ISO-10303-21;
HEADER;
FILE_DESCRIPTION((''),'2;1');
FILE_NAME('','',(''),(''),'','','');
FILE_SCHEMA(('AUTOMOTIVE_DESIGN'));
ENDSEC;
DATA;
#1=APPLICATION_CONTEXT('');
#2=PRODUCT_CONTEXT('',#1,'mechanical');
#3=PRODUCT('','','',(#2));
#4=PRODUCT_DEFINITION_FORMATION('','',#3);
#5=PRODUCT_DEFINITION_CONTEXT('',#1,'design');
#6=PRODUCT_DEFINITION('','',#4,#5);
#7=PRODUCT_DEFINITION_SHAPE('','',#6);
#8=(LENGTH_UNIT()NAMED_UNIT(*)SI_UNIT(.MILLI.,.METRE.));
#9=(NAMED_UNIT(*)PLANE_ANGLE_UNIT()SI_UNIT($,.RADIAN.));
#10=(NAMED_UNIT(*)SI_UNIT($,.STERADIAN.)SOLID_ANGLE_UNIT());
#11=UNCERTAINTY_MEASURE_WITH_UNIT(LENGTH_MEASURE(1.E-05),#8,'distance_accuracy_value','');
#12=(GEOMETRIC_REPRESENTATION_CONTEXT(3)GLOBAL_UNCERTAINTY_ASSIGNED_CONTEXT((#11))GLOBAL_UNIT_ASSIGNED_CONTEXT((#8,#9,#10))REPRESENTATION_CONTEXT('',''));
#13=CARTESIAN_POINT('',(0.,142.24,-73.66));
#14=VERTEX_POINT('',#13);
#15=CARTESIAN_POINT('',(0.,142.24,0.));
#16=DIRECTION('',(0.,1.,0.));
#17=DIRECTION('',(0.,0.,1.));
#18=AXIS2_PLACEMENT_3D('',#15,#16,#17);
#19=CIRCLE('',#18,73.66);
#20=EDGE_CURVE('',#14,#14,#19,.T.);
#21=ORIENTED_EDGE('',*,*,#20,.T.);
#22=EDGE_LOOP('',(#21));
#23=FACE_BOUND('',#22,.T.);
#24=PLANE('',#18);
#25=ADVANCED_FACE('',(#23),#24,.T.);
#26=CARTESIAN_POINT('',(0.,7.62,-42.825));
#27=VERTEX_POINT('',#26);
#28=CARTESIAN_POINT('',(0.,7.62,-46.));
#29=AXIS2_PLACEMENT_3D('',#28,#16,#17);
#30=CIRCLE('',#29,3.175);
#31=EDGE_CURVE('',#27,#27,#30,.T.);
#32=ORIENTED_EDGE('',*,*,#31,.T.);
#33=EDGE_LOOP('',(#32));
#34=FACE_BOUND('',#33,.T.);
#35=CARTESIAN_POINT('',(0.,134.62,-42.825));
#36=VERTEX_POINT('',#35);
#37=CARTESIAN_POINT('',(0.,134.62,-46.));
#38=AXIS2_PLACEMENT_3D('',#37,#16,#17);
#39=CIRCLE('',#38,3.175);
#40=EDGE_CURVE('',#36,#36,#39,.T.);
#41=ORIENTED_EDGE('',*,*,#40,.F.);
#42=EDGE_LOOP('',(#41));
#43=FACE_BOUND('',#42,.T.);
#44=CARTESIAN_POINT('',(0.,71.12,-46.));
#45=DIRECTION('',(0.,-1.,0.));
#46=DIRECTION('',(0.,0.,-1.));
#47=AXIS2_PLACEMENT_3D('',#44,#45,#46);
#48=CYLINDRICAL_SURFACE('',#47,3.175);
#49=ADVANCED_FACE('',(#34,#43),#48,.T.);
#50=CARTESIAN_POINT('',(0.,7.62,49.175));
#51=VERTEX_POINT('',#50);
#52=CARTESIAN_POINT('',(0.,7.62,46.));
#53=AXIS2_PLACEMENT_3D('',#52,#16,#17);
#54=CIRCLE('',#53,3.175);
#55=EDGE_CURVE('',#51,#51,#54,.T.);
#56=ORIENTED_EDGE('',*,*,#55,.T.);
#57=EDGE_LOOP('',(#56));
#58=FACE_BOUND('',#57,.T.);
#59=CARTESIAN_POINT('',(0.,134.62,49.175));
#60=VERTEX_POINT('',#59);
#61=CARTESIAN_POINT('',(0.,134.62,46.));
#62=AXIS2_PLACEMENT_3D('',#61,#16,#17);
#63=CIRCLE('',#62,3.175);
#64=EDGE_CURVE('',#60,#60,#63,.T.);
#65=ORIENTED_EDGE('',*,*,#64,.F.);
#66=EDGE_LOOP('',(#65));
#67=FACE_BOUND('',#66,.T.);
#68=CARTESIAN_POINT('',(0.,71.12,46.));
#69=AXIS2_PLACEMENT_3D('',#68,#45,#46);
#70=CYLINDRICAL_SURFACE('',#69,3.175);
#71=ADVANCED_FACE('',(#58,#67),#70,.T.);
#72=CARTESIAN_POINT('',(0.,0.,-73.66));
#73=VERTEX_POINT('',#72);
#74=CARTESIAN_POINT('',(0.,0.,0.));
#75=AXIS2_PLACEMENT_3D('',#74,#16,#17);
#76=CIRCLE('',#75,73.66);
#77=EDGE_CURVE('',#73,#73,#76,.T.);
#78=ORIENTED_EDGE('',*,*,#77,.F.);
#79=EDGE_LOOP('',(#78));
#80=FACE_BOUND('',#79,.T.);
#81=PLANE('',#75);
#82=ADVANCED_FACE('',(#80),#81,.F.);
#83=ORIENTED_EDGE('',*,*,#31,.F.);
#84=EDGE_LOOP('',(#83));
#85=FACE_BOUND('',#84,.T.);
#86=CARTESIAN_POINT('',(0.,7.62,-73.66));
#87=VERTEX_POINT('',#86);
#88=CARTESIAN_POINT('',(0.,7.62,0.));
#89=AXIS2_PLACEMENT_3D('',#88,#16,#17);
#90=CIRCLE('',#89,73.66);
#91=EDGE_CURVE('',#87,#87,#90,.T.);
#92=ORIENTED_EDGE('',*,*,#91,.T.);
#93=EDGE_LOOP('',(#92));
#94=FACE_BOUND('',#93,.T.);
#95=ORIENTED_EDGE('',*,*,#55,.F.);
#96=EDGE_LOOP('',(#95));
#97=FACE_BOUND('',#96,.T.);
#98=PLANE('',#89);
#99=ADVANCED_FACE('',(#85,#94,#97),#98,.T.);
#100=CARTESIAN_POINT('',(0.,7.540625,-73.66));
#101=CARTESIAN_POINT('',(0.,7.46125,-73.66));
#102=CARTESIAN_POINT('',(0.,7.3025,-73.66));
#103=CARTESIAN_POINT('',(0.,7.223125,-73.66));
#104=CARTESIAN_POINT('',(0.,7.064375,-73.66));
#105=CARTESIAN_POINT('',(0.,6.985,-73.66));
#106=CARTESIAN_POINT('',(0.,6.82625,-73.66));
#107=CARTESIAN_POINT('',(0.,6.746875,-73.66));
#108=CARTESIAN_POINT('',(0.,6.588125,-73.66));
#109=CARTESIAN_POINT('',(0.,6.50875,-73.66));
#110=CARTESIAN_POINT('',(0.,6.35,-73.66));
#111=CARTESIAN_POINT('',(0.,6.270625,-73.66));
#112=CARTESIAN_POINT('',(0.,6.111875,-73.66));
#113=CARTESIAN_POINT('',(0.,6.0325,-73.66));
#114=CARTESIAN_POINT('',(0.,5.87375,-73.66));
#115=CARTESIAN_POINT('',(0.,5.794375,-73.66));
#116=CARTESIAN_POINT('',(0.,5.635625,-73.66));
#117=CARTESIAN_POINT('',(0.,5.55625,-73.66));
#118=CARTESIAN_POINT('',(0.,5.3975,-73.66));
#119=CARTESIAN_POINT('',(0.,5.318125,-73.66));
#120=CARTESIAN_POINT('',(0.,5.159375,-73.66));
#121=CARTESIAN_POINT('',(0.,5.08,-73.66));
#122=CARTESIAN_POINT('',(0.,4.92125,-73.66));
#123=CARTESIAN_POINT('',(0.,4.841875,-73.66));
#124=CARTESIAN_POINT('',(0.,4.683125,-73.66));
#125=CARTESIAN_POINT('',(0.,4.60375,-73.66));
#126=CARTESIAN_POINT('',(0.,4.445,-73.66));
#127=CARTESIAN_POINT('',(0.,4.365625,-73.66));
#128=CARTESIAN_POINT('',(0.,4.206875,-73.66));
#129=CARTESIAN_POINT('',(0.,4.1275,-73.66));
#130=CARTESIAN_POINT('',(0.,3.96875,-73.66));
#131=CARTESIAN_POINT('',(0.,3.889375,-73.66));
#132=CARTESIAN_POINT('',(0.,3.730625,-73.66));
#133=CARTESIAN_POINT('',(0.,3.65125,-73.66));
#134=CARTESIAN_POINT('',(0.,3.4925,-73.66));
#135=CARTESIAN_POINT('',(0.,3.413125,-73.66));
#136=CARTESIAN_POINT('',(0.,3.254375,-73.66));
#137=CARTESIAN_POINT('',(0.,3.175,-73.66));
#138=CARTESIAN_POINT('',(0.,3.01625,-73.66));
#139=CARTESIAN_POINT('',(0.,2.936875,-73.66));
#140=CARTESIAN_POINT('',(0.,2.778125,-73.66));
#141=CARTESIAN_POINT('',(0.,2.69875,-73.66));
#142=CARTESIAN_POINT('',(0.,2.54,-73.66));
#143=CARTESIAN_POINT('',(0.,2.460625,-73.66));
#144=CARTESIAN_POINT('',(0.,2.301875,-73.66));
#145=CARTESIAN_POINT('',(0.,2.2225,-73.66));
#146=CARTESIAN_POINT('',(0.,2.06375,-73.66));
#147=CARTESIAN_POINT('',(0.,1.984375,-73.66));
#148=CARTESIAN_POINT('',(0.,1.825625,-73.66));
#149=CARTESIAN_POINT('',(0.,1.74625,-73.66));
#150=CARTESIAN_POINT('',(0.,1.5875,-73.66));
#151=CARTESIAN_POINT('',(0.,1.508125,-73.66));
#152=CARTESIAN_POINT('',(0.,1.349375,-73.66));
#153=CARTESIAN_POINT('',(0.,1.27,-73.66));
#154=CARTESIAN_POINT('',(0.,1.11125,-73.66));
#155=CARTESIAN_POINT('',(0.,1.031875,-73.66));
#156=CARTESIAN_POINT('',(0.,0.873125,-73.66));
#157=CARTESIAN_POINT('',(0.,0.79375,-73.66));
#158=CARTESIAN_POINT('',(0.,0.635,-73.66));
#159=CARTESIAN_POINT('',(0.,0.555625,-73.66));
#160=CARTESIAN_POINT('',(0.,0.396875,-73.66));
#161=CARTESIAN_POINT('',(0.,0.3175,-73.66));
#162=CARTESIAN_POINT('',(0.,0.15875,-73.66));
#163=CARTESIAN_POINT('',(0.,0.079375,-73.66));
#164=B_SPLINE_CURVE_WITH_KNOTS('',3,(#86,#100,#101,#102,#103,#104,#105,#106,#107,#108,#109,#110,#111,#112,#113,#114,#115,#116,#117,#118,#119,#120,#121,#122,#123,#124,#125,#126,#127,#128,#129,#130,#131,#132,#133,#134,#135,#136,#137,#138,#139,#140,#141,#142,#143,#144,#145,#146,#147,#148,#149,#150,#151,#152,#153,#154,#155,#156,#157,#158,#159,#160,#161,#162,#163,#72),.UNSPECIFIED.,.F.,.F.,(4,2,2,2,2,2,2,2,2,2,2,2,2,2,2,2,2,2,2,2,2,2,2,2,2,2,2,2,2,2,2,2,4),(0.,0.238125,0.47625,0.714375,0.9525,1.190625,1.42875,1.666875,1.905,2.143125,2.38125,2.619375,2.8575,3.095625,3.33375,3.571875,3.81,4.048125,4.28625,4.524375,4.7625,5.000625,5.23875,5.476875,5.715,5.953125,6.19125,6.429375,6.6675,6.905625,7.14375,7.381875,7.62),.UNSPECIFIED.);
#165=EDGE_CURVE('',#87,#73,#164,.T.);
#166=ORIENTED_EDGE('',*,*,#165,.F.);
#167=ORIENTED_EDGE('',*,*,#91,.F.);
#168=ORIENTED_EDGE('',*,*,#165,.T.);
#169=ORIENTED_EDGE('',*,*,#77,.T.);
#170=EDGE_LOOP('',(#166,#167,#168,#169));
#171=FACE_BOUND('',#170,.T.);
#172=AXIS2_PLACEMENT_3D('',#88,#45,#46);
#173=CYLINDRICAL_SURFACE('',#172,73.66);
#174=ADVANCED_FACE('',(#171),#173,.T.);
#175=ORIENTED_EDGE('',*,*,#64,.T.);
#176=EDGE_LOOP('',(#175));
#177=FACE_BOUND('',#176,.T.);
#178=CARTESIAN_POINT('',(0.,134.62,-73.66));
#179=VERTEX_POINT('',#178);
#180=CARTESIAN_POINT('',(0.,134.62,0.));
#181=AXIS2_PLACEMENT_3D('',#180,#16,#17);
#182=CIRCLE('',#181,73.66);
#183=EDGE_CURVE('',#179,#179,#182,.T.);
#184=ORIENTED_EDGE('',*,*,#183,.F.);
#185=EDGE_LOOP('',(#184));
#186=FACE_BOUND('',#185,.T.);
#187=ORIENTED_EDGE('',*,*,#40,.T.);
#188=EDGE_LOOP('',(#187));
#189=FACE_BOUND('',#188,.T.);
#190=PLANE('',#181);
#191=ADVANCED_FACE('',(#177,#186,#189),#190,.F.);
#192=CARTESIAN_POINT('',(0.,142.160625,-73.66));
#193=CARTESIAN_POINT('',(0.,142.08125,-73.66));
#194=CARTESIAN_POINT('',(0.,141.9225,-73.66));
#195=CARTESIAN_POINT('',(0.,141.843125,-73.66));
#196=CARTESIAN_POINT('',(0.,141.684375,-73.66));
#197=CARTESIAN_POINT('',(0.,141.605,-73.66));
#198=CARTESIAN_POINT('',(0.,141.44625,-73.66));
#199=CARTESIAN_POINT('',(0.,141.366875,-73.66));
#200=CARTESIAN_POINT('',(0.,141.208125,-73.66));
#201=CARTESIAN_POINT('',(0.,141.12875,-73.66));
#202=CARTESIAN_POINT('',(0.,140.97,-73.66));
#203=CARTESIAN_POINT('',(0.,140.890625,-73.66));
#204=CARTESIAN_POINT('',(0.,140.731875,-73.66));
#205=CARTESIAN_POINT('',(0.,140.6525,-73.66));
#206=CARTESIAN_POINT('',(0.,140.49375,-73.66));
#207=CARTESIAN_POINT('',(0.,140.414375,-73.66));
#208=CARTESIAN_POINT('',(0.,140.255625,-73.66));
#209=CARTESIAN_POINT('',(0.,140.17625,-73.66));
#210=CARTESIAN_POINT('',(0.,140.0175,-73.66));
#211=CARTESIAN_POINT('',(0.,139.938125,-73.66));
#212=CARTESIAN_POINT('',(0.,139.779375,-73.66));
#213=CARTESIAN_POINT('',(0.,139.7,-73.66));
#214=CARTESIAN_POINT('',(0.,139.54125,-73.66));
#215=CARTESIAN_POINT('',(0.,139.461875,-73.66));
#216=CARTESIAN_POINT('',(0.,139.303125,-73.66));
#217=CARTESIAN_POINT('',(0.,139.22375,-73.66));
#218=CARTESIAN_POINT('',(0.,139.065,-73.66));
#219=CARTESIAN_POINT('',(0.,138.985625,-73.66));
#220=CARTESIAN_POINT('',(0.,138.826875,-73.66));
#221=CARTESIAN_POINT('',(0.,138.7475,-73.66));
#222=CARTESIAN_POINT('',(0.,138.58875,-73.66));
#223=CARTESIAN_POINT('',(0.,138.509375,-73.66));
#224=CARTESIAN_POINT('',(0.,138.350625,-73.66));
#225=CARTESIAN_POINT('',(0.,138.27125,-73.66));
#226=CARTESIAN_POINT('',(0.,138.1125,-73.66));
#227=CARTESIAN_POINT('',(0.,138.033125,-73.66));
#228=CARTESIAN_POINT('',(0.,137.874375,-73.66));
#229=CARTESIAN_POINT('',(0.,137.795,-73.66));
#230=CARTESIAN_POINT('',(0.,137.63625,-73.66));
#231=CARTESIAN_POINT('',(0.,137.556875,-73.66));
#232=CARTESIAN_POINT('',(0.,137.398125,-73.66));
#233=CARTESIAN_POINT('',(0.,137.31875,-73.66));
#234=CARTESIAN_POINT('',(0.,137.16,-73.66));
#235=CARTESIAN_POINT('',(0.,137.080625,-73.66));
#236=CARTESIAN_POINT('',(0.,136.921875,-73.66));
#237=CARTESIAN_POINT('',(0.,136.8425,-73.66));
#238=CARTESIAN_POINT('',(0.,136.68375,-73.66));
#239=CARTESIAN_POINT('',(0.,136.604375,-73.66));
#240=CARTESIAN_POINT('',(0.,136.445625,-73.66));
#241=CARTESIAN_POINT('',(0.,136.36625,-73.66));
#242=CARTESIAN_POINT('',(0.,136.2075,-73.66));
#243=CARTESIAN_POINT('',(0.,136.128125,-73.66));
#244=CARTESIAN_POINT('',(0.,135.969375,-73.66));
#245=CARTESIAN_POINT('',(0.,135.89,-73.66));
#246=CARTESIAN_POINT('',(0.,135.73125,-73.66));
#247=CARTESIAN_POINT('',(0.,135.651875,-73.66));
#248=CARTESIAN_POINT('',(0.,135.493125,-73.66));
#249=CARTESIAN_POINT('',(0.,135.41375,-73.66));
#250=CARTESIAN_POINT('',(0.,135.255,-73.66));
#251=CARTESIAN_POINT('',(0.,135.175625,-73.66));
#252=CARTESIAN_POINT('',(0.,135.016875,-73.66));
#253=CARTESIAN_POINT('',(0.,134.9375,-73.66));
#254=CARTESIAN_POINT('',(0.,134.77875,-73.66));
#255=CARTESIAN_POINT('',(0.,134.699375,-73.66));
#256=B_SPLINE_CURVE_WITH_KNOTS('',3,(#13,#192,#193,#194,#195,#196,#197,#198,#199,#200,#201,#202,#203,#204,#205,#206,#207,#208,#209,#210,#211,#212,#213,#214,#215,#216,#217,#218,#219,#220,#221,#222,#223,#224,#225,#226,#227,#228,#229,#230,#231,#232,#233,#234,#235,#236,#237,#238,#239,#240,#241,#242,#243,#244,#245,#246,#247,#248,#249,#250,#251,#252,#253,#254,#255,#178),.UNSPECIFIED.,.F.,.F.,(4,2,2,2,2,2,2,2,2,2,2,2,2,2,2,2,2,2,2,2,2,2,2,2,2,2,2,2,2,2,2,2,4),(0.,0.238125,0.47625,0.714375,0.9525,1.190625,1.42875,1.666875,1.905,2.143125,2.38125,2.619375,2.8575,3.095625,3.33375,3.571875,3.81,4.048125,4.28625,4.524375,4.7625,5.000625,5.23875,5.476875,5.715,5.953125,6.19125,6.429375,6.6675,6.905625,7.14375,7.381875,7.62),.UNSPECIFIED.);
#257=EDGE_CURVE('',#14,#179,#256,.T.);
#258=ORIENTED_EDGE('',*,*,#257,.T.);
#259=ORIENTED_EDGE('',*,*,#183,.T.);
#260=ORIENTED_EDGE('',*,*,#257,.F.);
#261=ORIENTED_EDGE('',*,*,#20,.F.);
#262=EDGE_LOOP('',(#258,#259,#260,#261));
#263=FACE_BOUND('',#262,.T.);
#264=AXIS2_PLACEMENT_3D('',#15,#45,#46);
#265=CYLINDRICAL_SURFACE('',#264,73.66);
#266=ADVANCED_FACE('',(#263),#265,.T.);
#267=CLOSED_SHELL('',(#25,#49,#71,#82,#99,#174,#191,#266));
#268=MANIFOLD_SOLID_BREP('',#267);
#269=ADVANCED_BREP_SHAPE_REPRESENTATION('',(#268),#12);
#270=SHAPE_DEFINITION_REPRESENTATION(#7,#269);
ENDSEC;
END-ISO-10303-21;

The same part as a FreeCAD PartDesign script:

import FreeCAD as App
import Part
import Sketcher

V = App.Vector
Q = App.Units.Quantity

doc = App.newDocument("Part")
body = doc.addObject("PartDesign::Body", "Body")

sketch1 = doc.addObject("Sketcher::SketchObject", "Sketch")
body.addObject(sketch1)
sketch1.AttachmentSupport = (doc.XZ_Plane, [""])
sketch1.MapMode = "FlatFace"
sketch1.addGeometry(Part.Circle(V(0, 0, 0), V(0, 0, 1), 74), False)
sketch1.addConstraint(Sketcher.Constraint("Coincident", 0, 3, -1, 1))
sketch1.addConstraint(Sketcher.Constraint("Diameter", 0, Q("5.8 in")))
pad1 = doc.addObject("PartDesign::Pad", "Pad")
body.addObject(pad1)
pad1.Profile = sketch1
pad1.Length = Q("0.3 in")
pad1.Reversed = True

sketch2 = doc.addObject("Sketcher::SketchObject", "Sketch001")
body.addObject(sketch2)
sketch2.AttachmentSupport = (doc.XZ_Plane, [""])
sketch2.MapMode = "FlatFace"
sketch2.AttachmentOffset = App.Placement(V(0, 0, -0.3 * 25.4), App.Rotation())
sketch2.addGeometry(Part.Circle(V(0, -46, 0), V(0, 0, 1), 3.2), False)
sketch2.addGeometry(Part.Circle(V(0, 46, 0), V(0, 0, 1), 3.2), False)
sketch2.addConstraint(Sketcher.Constraint("Equal", 0, 1))
sketch2.addConstraint(Sketcher.Constraint("Symmetric", 0, 3, 1, 3, -1, 1))
sketch2.addConstraint(Sketcher.Constraint("PointOnObject", 0, 3, -2))
sketch2.addConstraint(Sketcher.Constraint("Diameter", 0, Q("0.25 in")))
sketch2.addConstraint(Sketcher.Constraint("DistanceY", 0, 3, -1, 1, 46.0))
pad2 = doc.addObject("PartDesign::Pad", "Pad001")
body.addObject(pad2)
pad2.Profile = sketch2
pad2.Length = Q("2.5 in")
pad2.Reversed = True
doc.recompute()

datumplane = doc.addObject("PartDesign::Plane", "DatumPlane")
body.addObject(datumplane)
datumplane.AttachmentSupport = (doc.XZ_Plane, [""])
datumplane.MapMode = "FlatFace"
datumplane.AttachmentOffset = App.Placement(V(0, 0, -2.8 * 25.4), App.Rotation())
mirrored = doc.addObject("PartDesign::Mirrored", "Mirrored")
body.addObject(mirrored)
mirrored.Originals = [pad2]
mirrored.MirrorPlane = (datumplane, [""])
body.Tip = mirrored

sketch3 = doc.addObject("Sketcher::SketchObject", "Sketch002")
body.addObject(sketch3)
sketch3.AttachmentSupport = (doc.XZ_Plane, [""])
sketch3.MapMode = "FlatFace"
sketch3.AttachmentOffset = App.Placement(V(0, 0, -5.3 * 25.4), App.Rotation())
sketch3.addGeometry(Part.Circle(V(0, 0, 0), V(0, 0, 1), 74), False)
sketch3.addConstraint(Sketcher.Constraint("Coincident", 0, 3, -1, 1))
sketch3.addConstraint(Sketcher.Constraint("Diameter", 0, Q("5.8 in")))
pad3 = doc.addObject("PartDesign::Pad", "Pad002")
body.addObject(pad3)
pad3.Profile = sketch3
pad3.Length = Q("0.3 in")
pad3.Reversed = True

doc.recompute()
